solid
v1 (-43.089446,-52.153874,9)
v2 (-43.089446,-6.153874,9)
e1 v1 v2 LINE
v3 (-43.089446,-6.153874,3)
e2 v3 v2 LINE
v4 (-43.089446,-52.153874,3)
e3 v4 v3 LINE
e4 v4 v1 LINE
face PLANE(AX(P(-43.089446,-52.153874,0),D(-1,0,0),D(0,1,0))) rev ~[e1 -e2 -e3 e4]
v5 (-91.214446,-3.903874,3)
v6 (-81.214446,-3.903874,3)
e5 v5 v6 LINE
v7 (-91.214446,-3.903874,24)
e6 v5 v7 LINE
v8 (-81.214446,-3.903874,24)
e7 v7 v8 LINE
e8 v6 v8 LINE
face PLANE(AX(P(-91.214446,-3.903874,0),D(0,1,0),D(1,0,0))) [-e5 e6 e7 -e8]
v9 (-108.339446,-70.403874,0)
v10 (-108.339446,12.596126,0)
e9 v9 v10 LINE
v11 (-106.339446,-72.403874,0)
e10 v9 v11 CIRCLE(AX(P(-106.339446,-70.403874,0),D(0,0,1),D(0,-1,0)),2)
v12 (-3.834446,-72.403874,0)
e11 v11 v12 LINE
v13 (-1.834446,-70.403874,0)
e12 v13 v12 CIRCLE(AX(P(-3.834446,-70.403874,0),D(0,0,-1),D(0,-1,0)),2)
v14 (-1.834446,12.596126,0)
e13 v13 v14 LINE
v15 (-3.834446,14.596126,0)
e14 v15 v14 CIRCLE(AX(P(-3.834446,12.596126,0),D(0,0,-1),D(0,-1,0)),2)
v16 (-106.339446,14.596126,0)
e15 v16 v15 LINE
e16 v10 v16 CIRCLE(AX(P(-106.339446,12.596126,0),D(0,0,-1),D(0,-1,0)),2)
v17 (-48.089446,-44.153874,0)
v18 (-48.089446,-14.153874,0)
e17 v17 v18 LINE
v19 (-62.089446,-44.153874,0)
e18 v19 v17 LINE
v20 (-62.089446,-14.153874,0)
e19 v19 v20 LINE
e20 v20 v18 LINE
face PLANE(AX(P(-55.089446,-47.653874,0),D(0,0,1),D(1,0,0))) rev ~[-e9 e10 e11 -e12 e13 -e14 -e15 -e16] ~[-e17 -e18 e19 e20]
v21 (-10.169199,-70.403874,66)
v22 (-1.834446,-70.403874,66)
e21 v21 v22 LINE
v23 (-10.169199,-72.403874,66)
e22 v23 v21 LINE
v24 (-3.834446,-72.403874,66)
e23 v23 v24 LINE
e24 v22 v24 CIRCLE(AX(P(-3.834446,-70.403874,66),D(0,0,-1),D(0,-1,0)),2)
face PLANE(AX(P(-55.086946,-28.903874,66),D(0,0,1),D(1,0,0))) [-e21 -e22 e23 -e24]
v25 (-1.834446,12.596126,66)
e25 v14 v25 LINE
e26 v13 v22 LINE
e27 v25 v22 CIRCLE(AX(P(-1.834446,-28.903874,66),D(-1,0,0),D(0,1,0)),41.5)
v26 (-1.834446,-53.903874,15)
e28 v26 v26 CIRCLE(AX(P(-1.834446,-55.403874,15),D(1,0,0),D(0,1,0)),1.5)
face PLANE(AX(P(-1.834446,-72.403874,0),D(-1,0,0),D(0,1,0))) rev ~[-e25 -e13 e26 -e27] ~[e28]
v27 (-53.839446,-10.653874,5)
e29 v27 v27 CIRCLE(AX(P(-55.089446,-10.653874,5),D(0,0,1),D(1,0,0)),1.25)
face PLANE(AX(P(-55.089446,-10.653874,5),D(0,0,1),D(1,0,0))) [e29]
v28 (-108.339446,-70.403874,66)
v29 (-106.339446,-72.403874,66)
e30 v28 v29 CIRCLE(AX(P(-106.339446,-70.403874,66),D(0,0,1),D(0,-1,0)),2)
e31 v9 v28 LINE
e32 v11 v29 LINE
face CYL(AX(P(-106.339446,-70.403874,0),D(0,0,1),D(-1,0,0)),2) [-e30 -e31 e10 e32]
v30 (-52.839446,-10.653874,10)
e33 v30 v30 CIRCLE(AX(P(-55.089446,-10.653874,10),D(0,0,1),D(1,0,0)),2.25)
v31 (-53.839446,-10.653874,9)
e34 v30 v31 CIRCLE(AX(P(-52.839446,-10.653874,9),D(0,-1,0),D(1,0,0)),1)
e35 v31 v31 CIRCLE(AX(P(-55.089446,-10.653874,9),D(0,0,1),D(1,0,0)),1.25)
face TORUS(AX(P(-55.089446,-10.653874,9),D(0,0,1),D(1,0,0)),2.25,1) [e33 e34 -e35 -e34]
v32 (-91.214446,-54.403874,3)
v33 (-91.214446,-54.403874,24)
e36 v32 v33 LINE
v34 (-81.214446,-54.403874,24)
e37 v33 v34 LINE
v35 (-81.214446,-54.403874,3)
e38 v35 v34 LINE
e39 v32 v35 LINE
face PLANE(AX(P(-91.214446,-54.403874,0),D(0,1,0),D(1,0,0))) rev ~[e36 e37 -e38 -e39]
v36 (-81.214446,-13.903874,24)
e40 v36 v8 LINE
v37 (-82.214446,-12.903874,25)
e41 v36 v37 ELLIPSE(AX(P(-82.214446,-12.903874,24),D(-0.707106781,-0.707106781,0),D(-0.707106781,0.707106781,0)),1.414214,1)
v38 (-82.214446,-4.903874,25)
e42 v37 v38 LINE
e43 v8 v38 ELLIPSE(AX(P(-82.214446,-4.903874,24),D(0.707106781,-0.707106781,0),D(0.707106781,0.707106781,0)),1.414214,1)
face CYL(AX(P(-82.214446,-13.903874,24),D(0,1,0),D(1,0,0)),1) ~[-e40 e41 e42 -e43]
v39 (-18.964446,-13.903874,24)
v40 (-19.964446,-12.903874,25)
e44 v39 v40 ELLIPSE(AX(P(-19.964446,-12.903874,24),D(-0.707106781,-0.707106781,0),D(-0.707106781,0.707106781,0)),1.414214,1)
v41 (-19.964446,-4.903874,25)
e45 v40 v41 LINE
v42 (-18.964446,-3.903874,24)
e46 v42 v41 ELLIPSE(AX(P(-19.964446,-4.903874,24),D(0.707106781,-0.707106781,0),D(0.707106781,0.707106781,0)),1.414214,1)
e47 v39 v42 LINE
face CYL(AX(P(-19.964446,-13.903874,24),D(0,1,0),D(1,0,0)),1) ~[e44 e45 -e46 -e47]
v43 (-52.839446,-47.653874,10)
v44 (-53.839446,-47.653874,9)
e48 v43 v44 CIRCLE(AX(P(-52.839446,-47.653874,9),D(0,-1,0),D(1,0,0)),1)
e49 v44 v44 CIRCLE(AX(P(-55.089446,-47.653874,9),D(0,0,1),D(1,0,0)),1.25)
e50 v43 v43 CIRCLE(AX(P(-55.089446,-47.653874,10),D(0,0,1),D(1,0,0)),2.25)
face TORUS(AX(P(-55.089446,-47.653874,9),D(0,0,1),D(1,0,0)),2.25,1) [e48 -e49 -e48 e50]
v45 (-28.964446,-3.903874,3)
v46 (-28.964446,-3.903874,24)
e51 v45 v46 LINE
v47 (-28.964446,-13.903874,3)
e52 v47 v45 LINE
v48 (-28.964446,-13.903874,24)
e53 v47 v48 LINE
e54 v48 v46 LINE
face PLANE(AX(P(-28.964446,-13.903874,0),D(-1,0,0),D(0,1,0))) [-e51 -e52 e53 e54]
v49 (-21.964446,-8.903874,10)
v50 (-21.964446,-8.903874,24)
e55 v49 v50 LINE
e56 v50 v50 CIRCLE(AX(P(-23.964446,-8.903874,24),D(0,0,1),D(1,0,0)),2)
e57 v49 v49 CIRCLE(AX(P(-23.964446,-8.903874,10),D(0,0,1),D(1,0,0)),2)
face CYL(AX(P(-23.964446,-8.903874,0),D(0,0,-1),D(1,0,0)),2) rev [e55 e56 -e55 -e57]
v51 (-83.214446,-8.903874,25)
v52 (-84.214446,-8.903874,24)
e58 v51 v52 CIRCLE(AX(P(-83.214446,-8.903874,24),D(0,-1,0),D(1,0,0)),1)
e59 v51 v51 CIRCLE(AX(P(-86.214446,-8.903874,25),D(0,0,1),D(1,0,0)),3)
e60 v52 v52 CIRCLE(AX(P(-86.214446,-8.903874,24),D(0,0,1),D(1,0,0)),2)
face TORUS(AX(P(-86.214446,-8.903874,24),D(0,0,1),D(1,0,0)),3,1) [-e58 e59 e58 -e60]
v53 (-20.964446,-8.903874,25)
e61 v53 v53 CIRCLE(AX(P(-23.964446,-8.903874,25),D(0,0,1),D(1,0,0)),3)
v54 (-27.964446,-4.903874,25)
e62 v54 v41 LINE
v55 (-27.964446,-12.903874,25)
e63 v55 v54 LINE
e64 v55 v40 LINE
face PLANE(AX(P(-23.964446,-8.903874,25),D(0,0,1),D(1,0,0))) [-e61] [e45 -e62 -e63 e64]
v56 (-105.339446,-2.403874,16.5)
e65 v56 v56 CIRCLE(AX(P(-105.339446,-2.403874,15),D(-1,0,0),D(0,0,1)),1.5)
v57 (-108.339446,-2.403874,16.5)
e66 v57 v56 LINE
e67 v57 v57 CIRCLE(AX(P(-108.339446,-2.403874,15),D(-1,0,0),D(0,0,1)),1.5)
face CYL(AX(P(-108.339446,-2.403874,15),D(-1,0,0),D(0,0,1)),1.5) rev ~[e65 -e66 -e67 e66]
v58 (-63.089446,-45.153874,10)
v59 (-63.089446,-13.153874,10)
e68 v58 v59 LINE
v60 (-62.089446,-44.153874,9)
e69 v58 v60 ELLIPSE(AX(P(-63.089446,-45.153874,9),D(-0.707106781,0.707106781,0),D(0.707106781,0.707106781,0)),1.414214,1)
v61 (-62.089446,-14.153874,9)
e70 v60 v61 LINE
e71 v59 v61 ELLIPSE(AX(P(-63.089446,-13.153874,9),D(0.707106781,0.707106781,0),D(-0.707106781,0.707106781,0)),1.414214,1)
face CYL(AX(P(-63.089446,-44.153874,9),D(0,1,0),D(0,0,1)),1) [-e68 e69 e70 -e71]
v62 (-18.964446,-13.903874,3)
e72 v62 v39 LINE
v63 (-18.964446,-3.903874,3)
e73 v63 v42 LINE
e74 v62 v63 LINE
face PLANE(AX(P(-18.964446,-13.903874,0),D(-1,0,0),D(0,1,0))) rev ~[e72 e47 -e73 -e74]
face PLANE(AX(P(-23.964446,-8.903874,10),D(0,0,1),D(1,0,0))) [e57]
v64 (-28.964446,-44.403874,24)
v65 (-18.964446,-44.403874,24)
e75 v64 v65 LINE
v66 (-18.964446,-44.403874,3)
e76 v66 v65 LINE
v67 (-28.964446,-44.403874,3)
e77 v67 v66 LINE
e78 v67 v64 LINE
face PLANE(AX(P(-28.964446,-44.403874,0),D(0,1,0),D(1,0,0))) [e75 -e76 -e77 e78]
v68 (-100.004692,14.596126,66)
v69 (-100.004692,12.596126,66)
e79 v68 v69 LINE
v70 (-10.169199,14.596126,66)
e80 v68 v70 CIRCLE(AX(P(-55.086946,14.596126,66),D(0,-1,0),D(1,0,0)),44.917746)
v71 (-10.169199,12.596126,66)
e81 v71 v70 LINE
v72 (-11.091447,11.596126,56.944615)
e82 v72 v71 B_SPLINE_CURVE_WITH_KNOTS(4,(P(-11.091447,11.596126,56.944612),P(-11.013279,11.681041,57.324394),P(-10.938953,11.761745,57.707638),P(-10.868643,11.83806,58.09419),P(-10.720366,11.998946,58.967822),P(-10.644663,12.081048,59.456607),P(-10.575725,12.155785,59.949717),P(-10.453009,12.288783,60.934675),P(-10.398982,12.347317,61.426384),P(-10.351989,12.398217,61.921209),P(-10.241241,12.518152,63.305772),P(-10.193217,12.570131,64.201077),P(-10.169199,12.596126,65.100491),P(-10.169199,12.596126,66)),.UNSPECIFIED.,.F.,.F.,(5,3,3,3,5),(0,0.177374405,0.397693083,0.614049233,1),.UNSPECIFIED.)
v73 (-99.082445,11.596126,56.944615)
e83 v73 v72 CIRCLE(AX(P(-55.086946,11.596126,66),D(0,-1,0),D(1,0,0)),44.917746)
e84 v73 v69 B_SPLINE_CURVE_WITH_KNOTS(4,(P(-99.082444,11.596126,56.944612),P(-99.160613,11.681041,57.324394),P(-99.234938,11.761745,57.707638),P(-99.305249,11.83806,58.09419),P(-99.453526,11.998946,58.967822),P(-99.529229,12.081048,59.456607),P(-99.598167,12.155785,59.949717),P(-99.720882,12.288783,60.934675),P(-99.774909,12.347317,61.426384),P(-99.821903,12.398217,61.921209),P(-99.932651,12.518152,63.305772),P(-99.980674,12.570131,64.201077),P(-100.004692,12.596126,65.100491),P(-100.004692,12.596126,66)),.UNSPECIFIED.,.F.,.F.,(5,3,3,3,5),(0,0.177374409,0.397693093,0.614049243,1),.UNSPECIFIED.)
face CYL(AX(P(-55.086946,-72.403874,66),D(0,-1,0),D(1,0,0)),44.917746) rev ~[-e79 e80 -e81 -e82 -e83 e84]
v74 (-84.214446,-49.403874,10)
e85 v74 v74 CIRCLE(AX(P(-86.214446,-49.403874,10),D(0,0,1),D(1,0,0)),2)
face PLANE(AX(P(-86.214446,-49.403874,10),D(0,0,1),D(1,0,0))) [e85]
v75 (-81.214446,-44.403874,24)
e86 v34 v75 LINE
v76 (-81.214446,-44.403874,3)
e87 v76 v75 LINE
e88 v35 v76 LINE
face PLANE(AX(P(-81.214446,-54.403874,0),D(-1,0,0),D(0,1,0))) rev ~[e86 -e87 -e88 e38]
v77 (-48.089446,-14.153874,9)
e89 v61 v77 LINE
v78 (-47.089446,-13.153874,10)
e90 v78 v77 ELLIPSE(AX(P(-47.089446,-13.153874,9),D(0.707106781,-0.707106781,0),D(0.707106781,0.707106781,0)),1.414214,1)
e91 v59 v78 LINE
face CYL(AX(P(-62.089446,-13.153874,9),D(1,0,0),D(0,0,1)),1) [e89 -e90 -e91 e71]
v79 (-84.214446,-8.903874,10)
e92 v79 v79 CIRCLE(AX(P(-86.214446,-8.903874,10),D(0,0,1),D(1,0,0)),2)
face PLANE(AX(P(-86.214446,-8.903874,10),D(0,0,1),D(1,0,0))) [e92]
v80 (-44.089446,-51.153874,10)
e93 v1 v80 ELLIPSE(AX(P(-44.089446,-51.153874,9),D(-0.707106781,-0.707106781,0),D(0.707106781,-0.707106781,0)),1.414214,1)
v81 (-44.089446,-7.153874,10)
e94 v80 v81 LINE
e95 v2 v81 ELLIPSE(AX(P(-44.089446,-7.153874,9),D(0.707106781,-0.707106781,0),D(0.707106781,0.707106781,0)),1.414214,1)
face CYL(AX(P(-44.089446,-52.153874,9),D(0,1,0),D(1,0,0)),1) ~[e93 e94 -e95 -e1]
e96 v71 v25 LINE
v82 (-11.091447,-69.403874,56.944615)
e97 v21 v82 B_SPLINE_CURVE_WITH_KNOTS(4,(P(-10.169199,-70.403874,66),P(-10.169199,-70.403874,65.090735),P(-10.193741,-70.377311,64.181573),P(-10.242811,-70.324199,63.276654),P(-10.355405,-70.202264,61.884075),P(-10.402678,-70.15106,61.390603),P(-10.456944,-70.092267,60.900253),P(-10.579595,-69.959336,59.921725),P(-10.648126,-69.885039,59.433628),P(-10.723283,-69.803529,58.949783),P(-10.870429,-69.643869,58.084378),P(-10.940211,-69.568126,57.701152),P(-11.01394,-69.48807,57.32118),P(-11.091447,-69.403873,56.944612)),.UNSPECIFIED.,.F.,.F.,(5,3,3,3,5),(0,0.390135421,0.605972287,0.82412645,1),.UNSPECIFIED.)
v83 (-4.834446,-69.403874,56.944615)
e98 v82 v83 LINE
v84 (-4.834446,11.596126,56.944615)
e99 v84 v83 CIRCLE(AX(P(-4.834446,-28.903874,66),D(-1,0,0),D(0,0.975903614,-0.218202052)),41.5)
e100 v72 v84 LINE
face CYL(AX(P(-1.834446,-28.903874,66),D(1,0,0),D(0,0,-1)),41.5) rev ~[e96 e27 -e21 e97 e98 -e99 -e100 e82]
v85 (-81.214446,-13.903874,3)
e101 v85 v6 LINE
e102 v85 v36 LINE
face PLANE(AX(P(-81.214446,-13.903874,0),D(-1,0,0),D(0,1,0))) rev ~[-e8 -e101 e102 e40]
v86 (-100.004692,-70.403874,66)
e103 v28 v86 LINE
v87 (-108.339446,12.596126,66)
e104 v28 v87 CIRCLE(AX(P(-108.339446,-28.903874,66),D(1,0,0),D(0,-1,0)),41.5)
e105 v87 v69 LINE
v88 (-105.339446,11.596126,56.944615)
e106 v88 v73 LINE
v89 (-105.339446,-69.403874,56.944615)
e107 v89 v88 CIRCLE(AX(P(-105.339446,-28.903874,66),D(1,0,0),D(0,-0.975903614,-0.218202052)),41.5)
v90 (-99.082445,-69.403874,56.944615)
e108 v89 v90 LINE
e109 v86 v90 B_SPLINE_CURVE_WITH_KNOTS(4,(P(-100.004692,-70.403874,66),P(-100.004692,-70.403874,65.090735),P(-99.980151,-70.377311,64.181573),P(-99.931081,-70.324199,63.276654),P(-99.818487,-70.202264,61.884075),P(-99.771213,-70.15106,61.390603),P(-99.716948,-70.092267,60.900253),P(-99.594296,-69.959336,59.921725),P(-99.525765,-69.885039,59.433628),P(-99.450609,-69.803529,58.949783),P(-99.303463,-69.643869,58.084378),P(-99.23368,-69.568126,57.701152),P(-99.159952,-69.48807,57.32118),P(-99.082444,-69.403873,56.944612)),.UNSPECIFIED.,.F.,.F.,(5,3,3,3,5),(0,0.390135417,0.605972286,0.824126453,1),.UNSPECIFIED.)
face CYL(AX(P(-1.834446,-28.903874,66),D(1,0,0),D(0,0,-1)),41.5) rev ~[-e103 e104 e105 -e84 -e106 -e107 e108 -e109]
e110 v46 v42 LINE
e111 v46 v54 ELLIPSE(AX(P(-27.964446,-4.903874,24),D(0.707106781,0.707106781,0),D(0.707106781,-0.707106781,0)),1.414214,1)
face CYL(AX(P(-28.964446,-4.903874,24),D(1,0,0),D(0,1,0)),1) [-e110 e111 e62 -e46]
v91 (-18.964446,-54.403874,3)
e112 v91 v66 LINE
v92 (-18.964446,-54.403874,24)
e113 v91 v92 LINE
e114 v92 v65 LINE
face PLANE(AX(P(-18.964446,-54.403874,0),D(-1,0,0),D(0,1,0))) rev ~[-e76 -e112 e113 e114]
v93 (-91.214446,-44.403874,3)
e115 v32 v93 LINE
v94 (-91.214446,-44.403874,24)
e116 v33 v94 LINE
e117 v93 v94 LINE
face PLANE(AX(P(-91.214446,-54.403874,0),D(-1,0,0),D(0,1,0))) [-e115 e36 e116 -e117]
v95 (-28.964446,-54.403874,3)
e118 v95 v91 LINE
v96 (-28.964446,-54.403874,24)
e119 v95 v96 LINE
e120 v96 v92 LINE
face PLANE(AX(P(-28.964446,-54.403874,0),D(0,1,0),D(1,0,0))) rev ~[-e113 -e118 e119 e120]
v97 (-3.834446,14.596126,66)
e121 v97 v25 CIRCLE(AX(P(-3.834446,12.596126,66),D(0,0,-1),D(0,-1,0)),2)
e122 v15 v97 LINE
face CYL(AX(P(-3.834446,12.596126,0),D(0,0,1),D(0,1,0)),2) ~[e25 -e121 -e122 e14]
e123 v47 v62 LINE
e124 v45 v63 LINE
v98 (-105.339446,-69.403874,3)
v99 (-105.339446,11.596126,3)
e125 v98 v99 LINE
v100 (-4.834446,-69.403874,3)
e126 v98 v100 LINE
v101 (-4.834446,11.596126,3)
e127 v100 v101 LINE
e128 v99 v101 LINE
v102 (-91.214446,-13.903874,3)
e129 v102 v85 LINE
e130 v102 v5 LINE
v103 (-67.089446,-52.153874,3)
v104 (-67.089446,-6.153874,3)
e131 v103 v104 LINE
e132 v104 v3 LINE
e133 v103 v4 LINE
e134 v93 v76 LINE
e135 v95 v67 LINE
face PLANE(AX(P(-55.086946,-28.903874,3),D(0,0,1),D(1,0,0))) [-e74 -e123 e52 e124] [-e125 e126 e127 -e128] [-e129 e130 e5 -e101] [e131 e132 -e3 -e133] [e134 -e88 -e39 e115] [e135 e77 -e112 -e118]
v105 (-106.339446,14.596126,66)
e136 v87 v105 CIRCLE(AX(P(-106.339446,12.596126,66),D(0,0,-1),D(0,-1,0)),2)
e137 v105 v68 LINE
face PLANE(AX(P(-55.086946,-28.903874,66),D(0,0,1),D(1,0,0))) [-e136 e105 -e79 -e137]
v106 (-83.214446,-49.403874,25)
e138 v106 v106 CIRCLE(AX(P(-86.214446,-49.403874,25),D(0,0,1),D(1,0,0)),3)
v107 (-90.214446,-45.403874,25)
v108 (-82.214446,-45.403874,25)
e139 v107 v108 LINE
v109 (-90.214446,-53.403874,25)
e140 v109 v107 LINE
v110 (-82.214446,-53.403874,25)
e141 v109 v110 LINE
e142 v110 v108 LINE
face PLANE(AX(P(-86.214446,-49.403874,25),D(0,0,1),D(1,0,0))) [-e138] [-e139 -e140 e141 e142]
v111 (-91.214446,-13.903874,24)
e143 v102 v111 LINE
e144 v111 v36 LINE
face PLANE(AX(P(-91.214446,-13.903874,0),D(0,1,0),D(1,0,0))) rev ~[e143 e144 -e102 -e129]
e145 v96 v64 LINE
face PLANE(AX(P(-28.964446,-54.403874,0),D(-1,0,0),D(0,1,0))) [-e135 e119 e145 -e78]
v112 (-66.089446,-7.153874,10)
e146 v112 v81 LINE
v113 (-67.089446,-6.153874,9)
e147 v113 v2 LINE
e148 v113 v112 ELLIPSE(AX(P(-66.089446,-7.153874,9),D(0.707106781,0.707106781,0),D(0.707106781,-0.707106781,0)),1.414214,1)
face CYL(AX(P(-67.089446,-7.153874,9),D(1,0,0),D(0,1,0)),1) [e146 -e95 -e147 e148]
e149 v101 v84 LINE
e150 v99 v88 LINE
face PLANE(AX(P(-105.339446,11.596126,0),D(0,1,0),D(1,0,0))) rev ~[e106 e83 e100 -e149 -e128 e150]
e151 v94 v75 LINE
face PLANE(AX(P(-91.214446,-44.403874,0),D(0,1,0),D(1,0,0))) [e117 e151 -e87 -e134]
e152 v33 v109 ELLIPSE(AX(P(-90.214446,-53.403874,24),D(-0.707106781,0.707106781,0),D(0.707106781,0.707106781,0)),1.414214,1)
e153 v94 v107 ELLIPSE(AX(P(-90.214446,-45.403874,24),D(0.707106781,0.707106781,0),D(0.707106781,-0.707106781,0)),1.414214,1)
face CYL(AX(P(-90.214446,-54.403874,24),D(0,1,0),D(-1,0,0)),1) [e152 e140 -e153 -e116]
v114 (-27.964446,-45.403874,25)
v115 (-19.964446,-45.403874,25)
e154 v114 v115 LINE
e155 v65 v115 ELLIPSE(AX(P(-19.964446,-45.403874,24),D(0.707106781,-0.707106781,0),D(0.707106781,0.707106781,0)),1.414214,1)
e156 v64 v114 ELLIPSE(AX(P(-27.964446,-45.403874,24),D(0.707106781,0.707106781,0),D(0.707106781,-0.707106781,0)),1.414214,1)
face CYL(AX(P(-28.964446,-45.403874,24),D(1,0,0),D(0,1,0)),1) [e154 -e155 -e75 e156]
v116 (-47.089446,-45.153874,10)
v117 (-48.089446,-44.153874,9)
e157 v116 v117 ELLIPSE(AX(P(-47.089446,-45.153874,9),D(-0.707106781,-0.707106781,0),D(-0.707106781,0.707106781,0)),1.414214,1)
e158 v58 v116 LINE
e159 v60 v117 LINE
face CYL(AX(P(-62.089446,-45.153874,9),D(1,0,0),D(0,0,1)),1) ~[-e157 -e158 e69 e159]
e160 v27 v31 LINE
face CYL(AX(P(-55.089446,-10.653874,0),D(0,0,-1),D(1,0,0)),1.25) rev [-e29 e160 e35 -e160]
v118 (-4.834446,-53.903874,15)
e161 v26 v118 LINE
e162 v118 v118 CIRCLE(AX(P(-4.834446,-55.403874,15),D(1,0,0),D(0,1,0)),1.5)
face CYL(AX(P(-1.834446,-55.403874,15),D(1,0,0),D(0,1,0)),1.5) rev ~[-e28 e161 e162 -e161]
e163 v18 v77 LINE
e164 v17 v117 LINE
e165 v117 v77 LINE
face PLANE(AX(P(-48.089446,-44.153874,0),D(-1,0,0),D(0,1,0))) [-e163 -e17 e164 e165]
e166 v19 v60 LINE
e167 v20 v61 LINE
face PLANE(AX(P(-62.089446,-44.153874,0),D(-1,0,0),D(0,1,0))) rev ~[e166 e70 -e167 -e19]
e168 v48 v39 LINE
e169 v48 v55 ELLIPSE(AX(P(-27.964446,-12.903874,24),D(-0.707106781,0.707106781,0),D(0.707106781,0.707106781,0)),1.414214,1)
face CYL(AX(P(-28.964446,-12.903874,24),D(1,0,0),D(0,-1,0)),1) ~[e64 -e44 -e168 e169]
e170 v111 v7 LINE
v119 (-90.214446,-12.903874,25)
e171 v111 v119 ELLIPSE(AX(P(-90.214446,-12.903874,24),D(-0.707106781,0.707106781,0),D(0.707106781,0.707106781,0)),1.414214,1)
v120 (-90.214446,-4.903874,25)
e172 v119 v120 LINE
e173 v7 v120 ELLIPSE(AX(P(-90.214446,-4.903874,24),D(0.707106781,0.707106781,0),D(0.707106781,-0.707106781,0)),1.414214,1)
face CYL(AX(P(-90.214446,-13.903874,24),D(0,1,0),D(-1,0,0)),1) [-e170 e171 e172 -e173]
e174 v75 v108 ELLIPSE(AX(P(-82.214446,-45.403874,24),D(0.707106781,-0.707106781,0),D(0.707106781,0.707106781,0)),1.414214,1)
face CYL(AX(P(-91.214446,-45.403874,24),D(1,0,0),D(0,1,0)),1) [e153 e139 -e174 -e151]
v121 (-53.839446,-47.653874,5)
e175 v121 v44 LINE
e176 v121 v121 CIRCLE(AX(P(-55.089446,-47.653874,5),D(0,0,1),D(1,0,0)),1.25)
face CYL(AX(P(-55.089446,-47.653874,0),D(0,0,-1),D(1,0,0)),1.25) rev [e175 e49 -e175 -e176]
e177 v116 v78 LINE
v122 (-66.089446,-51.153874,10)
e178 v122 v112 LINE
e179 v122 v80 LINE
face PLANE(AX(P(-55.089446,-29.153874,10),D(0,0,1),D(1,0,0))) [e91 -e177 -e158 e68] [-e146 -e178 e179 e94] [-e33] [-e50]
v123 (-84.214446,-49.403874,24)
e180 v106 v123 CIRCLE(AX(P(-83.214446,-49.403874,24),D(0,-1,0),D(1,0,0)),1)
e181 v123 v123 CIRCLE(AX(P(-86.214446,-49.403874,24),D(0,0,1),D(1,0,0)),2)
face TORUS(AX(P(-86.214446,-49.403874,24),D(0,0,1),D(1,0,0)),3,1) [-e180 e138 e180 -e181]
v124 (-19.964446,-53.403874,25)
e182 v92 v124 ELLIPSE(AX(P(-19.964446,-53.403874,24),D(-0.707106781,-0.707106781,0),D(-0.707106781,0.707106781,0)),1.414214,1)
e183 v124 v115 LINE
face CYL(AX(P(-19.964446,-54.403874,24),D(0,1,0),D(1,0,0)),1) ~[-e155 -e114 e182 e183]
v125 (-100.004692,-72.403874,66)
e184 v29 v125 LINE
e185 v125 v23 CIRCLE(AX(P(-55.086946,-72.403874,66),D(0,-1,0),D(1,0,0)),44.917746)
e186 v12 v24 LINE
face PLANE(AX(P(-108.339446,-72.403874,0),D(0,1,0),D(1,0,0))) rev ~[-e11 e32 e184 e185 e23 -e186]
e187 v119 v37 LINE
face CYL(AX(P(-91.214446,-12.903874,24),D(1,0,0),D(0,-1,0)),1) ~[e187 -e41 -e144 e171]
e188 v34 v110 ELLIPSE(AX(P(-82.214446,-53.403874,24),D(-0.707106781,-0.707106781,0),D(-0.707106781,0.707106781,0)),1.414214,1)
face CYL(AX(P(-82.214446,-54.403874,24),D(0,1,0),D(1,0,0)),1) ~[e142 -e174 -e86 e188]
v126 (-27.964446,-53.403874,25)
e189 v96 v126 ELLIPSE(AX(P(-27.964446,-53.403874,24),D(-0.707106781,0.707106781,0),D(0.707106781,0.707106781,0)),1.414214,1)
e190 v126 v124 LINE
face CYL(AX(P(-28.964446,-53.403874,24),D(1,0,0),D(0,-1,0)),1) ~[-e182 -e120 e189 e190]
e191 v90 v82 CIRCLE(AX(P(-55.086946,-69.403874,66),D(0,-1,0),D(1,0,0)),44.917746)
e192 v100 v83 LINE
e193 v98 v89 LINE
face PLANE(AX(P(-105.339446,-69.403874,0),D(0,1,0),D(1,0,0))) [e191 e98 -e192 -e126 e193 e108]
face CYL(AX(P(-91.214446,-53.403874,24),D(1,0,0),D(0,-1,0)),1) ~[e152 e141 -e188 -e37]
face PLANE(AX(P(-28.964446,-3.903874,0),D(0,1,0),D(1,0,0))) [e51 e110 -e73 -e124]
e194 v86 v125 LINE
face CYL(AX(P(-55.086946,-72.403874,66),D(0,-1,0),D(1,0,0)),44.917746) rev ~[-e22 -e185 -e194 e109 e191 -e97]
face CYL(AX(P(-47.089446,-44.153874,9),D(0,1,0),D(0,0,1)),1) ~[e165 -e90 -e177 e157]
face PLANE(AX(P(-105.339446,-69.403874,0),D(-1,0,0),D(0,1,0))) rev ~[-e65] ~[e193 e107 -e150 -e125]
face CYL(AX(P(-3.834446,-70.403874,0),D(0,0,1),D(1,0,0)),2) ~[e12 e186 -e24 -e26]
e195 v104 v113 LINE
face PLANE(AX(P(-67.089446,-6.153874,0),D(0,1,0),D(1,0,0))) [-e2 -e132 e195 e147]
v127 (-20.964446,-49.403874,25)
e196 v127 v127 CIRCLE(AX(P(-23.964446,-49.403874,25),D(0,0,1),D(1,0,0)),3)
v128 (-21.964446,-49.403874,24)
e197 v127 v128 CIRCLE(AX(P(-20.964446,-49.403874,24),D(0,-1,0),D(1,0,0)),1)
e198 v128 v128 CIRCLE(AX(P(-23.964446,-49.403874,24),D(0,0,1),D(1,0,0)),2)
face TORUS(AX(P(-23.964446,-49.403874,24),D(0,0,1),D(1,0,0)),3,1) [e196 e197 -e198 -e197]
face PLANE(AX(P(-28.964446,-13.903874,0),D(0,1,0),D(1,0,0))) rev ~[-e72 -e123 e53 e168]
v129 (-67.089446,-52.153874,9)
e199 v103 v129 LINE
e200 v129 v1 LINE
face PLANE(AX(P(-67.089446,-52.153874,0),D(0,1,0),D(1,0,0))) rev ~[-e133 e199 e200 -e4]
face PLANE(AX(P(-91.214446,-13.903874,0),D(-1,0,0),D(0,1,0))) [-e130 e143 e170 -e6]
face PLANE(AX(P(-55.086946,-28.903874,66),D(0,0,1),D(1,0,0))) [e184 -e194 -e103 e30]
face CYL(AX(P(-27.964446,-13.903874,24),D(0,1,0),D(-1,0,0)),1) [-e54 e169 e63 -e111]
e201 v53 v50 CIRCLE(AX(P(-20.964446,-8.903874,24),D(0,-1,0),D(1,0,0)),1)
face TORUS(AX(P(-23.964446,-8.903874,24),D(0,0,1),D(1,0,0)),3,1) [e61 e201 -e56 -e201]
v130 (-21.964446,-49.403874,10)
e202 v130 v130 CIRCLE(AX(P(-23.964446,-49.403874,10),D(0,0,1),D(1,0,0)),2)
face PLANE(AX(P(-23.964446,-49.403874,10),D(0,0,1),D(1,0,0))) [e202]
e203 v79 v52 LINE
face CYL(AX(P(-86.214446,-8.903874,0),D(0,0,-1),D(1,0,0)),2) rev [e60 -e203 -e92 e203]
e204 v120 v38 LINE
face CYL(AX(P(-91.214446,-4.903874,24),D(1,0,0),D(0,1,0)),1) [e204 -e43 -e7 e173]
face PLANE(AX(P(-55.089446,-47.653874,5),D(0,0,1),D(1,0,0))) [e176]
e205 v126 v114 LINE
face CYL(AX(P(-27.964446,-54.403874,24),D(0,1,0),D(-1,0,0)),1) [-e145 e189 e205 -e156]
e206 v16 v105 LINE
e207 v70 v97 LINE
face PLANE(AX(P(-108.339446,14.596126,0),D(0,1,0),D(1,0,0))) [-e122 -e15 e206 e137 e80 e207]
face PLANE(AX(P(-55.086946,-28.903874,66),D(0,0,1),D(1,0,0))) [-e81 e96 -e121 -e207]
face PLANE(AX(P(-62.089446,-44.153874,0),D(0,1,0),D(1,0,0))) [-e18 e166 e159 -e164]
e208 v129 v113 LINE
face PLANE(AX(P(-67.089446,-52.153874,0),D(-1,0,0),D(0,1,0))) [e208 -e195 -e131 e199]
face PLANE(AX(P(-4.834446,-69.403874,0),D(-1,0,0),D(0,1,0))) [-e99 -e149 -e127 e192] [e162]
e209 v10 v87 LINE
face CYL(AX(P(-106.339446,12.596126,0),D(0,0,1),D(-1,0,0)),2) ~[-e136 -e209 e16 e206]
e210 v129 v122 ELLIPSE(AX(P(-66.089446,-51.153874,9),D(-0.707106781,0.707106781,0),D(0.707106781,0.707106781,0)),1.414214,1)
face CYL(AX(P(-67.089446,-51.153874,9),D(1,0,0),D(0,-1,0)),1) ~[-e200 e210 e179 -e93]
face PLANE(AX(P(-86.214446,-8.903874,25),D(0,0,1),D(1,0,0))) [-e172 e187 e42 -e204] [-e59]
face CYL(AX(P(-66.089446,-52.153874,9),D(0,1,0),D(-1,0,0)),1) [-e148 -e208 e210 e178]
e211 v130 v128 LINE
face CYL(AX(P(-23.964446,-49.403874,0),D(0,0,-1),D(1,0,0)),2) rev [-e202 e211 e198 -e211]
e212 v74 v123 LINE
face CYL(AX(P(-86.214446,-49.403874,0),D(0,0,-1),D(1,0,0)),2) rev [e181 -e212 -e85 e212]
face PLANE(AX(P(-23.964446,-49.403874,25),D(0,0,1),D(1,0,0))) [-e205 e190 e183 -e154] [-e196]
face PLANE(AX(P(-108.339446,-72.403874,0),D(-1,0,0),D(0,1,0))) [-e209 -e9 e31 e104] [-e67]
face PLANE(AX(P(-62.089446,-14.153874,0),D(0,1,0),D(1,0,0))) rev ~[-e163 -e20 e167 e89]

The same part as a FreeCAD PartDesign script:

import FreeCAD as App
import Part
import Sketcher

V = App.Vector
Q = App.Units.Quantity


def edges_at(feature, points):
    """Names of the edges that pass closest to the given points."""
    edges = feature.Shape.Edges
    near = lambda p: min(range(len(edges)), key=lambda i: edges[i].distToShape(Part.Vertex(*p))[0])
    return sorted({f"Edge{near(p) + 1}" for p in points})

doc = App.newDocument("Part")
body = doc.addObject("PartDesign::Body", "Body")

sketch1 = body.newObject("Sketcher::SketchObject", "Sketch")
sketch1.AttachmentSupport = (doc.getObject("XY_Plane"), [""])
sketch1.MapMode = "FlatFace"
sketch1.addGeometry([
    Part.LineSegment(V(-108, 15, 0), V(-108, -72, 0)),
    Part.LineSegment(V(-108, -72, 0), V(-2, -72, 0)),
    Part.LineSegment(V(-2, -72, 0), V(-2, 15, 0)),
    Part.LineSegment(V(-2, 15, 0), V(-108, 15, 0)),
    Part.LineSegment(V(-5, -69, 0), V(-105, -69, 0)),
    Part.LineSegment(V(-105, -69, 0), V(-105, 12, 0)),
    Part.LineSegment(V(-105, 12, 0), V(-5, 12, 0)),
    Part.LineSegment(V(-5, 12, 0), V(-5, -69, 0)),
], False)
sketch1.addConstraint([
    Sketcher.Constraint("Coincident", 0, 2, 1, 1),
    Sketcher.Constraint("Coincident", 1, 2, 2, 1),
    Sketcher.Constraint("Coincident", 2, 2, 3, 1),
    Sketcher.Constraint("Coincident", 3, 2, 0, 1),
    Sketcher.Constraint("Coincident", 4, 2, 5, 1),
    Sketcher.Constraint("Coincident", 5, 2, 6, 1),
    Sketcher.Constraint("Coincident", 6, 2, 7, 1),
    Sketcher.Constraint("Coincident", 7, 2, 4, 1),
    Sketcher.Constraint("Vertical", 0),
    Sketcher.Constraint("Horizontal", 1),
    Sketcher.Constraint("Vertical", 2),
    Sketcher.Constraint("Horizontal", 3),
    Sketcher.Constraint("Horizontal", 4),
    Sketcher.Constraint("Vertical", 5),
    Sketcher.Constraint("Horizontal", 6),
    Sketcher.Constraint("Vertical", 7),
    Sketcher.Constraint("DistanceY", 0, 2, 0, 1, Q("87 mm")),
    Sketcher.Constraint("DistanceY", 5, 1, 5, 2, Q("81 mm")),
    Sketcher.Constraint("DistanceX", 0, 2, 4, 2, Q("3 mm")),
    Sketcher.Constraint("DistanceY", 0, 2, 4, 2, Q("3 mm")),
    Sketcher.Constraint("DistanceX", 6, 2, 2, 2, Q("3 mm")),
    Sketcher.Constraint("DistanceX", 1, 1, 1, 2, Q("106.505 mm")),
    Sketcher.Constraint("DistanceX", 0, 2, -1, 1, Q("108.339446 mm")),
    Sketcher.Constraint("DistanceY", 0, 2, -1, 1, Q("72.403874 mm")),
])
pad1 = body.newObject("PartDesign::Pad", "Pad")
pad1.Profile = sketch1
pad1.Length = 66

sketch2 = body.newObject("Sketcher::SketchObject", "Sketch001")
sketch2.AttachmentSupport = (doc.getObject("XY_Plane"), [""])
sketch2.MapMode = "FlatFace"
sketch2.addGeometry([
    Part.LineSegment(V(-105, 12, 0), V(-105, -69, 0)),
    Part.LineSegment(V(-105, -69, 0), V(-5, -69, 0)),
    Part.LineSegment(V(-5, -69, 0), V(-5, 12, 0)),
    Part.LineSegment(V(-5, 12, 0), V(-105, 12, 0)),
    Part.LineSegment(V(-81, -54, 0), V(-91, -54, 0)),
    Part.LineSegment(V(-91, -54, 0), V(-91, -44, 0)),
    Part.LineSegment(V(-91, -44, 0), V(-81, -44, 0)),
    Part.LineSegment(V(-81, -44, 0), V(-81, -54, 0)),
    Part.LineSegment(V(-19, -54, 0), V(-29, -54, 0)),
    Part.LineSegment(V(-29, -54, 0), V(-29, -44, 0)),
    Part.LineSegment(V(-29, -44, 0), V(-19, -44, 0)),
    Part.LineSegment(V(-19, -44, 0), V(-19, -54, 0)),
    Part.LineSegment(V(-43, -52, 0), V(-67, -52, 0)),
    Part.LineSegment(V(-67, -52, 0), V(-67, -6, 0)),
    Part.LineSegment(V(-67, -6, 0), V(-43, -6, 0)),
    Part.LineSegment(V(-43, -6, 0), V(-43, -52, 0)),
    Part.LineSegment(V(-81, -14, 0), V(-91, -14, 0)),
    Part.LineSegment(V(-91, -14, 0), V(-91, -4, 0)),
    Part.LineSegment(V(-91, -4, 0), V(-81, -4, 0)),
    Part.LineSegment(V(-81, -4, 0), V(-81, -14, 0)),
    Part.LineSegment(V(-19, -14, 0), V(-29, -14, 0)),
    Part.LineSegment(V(-29, -14, 0), V(-29, -4, 0)),
    Part.LineSegment(V(-29, -4, 0), V(-19, -4, 0)),
    Part.LineSegment(V(-19, -4, 0), V(-19, -14, 0)),
], False)
sketch2.addConstraint([
    Sketcher.Constraint("Coincident", 0, 2, 1, 1),
    Sketcher.Constraint("Coincident", 1, 2, 2, 1),
    Sketcher.Constraint("Coincident", 2, 2, 3, 1),
    Sketcher.Constraint("Coincident", 3, 2, 0, 1),
    Sketcher.Constraint("Coincident", 4, 2, 5, 1),
    Sketcher.Constraint("Coincident", 5, 2, 6, 1),
    Sketcher.Constraint("Coincident", 6, 2, 7, 1),
    Sketcher.Constraint("Coincident", 7, 2, 4, 1),
    Sketcher.Constraint("Coincident", 8, 2, 9, 1),
    Sketcher.Constraint("Coincident", 9, 2, 10, 1),
    Sketcher.Constraint("Coincident", 10, 2, 11, 1),
    Sketcher.Constraint("Coincident", 11, 2, 8, 1),
    Sketcher.Constraint("Coincident", 12, 2, 13, 1),
    Sketcher.Constraint("Coincident", 13, 2, 14, 1),
    Sketcher.Constraint("Coincident", 14, 2, 15, 1),
    Sketcher.Constraint("Coincident", 15, 2, 12, 1),
    Sketcher.Constraint("Coincident", 16, 2, 17, 1),
    Sketcher.Constraint("Coincident", 17, 2, 18, 1),
    Sketcher.Constraint("Coincident", 18, 2, 19, 1),
    Sketcher.Constraint("Coincident", 19, 2, 16, 1),
    Sketcher.Constraint("Coincident", 20, 2, 21, 1),
    Sketcher.Constraint("Coincident", 21, 2, 22, 1),
    Sketcher.Constraint("Coincident", 22, 2, 23, 1),
    Sketcher.Constraint("Coincident", 23, 2, 20, 1),
    Sketcher.Constraint("Vertical", 0),
    Sketcher.Constraint("Horizontal", 1),
    Sketcher.Constraint("Vertical", 2),
    Sketcher.Constraint("Horizontal", 3),
    Sketcher.Constraint("Horizontal", 4),
    Sketcher.Constraint("Vertical", 5),
    Sketcher.Constraint("Horizontal", 6),
    Sketcher.Constraint("Vertical", 7),
    Sketcher.Constraint("Horizontal", 8),
    Sketcher.Constraint("Vertical", 9),
    Sketcher.Constraint("Horizontal", 10),
    Sketcher.Constraint("Vertical", 11),
    Sketcher.Constraint("Horizontal", 12),
    Sketcher.Constraint("Vertical", 13),
    Sketcher.Constraint("Horizontal", 14),
    Sketcher.Constraint("Vertical", 15),
    Sketcher.Constraint("Horizontal", 16),
    Sketcher.Constraint("Vertical", 17),
    Sketcher.Constraint("Horizontal", 18),
    Sketcher.Constraint("Vertical", 19),
    Sketcher.Constraint("Horizontal", 20),
    Sketcher.Constraint("Vertical", 21),
    Sketcher.Constraint("Horizontal", 22),
    Sketcher.Constraint("Vertical", 23),
    Sketcher.Constraint("Horizontal", 7, 2, 8, 2),
    Sketcher.Constraint("Horizontal", 6, 2, 9, 2),
    Sketcher.Constraint("Horizontal", 19, 2, 20, 2),
    Sketcher.Constraint("Horizontal", 18, 2, 21, 2),
    Sketcher.Constraint("Vertical", 5, 2, 16, 2),
    Sketcher.Constraint("Vertical", 7, 2, 18, 2),
    Sketcher.Constraint("Vertical", 9, 2, 20, 2),
    Sketcher.Constraint("Vertical", 11, 2, 22, 2),
    Sketcher.Constraint("Equal", 6, 8),
    Sketcher.Constraint("Equal", 22, 5),
    Sketcher.Constraint("Equal", 11, 17),
    Sketcher.Constraint("DistanceX", 4, 2, 4, 1, Q("10 mm")),
    Sketcher.Constraint("DistanceX", 12, 2, 12, 1, Q("24 mm")),
    Sketcher.Constraint("DistanceY", 0, 2, 0, 1, Q("81 mm")),
    Sketcher.Constraint("DistanceY", 13, 1, 13, 2, Q("46 mm")),
    Sketcher.Constraint("DistanceY", 0, 2, 4, 2, Q("15 mm")),
    Sketcher.Constraint("DistanceY", 16, 2, 3, 2, Q("25.5 mm")),
    Sketcher.Constraint("DistanceX", 1, 1, 1, 2, Q("100.505 mm")),
    Sketcher.Constraint("DistanceX", 4, 2, 1, 2, Q("86.38 mm")),
    Sketcher.Constraint("DistanceX", 8, 2, 1, 2, Q("24.13 mm")),
    Sketcher.Constraint("DistanceY", 7, 2, 12, 2, Q("2.25 mm")),
    Sketcher.Constraint("DistanceX", 3, 2, 13, 2, Q("38.25 mm")),
    Sketcher.Constraint("DistanceX", 0, 2, -1, 1, Q("105.339446 mm")),
    Sketcher.Constraint("DistanceY", 0, 2, -1, 1, Q("69.403874 mm")),
])
pad2 = body.newObject("PartDesign::Pad", "Pad001")
pad2.Profile = sketch2
pad2.Length = 3
doc.recompute()

fillet = body.newObject("PartDesign::Fillet", "Fillet")
fillet.Base = (pad2, edges_at(pad2, [(-108.339, -72.404, 33)]))
fillet.Radius = 2
doc.recompute()

fillet2 = body.newObject("PartDesign::Fillet", "Fillet001")
fillet2.Base = (fillet, edges_at(fillet, [(-108.339, 14.596, 33)]))
fillet2.Radius = 2
doc.recompute()

fillet3 = body.newObject("PartDesign::Fillet", "Fillet002")
fillet3.Base = (fillet2, edges_at(fillet2, [(-1.834, 14.596, 33)]))
fillet3.Radius = 2
doc.recompute()

fillet4 = body.newObject("PartDesign::Fillet", "Fillet003")
fillet4.Base = (fillet3, edges_at(fillet3, [(-1.834, -72.404, 33)]))
fillet4.Radius = 2

sketch3 = body.newObject("Sketcher::SketchObject", "Sketch002")
sketch3.AttachmentSupport = (doc.getObject("XZ_Plane"), [""])
sketch3.MapMode = "FlatFace"
sketch3.AttachmentOffset = App.Placement(V(0, 0, 72.403874), App.Rotation())
sketch3.addGeometry(Part.Circle(V(-55, 66, 0), V(0, 0, 1), 45), False)
sketch3.addConstraint([
    Sketcher.Constraint("DistanceY", -1, 1, 0, 3, Q("66 mm")),
    Sketcher.Constraint("Diameter", 0, Q("89.835493 mm")),
    Sketcher.Constraint("DistanceX", 0, 3, -1, 1, Q("55.086946 mm")),
])
pocket1 = body.newObject("PartDesign::Pocket", "Pocket")
pocket1.Profile = sketch3
pocket1.Length = 111

sketch4 = body.newObject("Sketcher::SketchObject", "Sketch003")
sketch4.AttachmentSupport = (doc.getObject("YZ_Plane"), [""])
sketch4.MapMode = "FlatFace"
sketch4.AttachmentOffset = App.Placement(V(0, 0, -1.834446), App.Rotation())
sketch4.addGeometry(Part.Circle(V(-29, 66, 0), V(0, 0, 1), 42), False)
sketch4.addConstraint([
    Sketcher.Constraint("Diameter", 0, Q("83 mm")),
    Sketcher.Constraint("DistanceY", -1, 1, 0, 3, Q("66 mm")),
    Sketcher.Constraint("DistanceX", 0, 3, -1, 1, Q("28.903874 mm")),
])
pocket2 = body.newObject("PartDesign::Pocket", "Pocket001")
pocket2.Profile = sketch4
pocket2.Length = 111

sketch5 = body.newObject("Sketcher::SketchObject", "Sketch004")
sketch5.AttachmentSupport = (doc.getObject("YZ_Plane"), [""])
sketch5.MapMode = "FlatFace"
sketch5.AttachmentOffset = App.Placement(V(0, 0, -108.339446), App.Rotation())
sketch5.addGeometry(Part.Circle(V(-2.4, 15, 0), V(0, 0, 1), 1.5), False)
sketch5.addConstraint([
    Sketcher.Constraint("Diameter", 0, Q("3 mm")),
    Sketcher.Constraint("DistanceY", -1, 1, 0, 3, Q("15 mm")),
    Sketcher.Constraint("DistanceX", 0, 3, -1, 1, Q("2.403874 mm")),
])
pocket3 = body.newObject("PartDesign::Pocket", "Pocket002")
pocket3.Profile = sketch5
pocket3.Length = 5
pocket3.Reversed = True

sketch6 = body.newObject("Sketcher::SketchObject", "Sketch005")
sketch6.AttachmentSupport = (doc.getObject("YZ_Plane"), [""])
sketch6.MapMode = "FlatFace"
sketch6.AttachmentOffset = App.Placement(V(0, 0, -1.834446), App.Rotation())
sketch6.addGeometry(Part.Circle(V(-55.4, 15, 0), V(0, 0, 1), 1.5), False)
sketch6.addConstraint([
    Sketcher.Constraint("Diameter", 0, Q("3 mm")),
    Sketcher.Constraint("DistanceY", -1, 1, 0, 3, Q("15 mm")),
    Sketcher.Constraint("DistanceX", 0, 3, -1, 1, Q("55.403874 mm")),
])
pocket4 = body.newObject("PartDesign::Pocket", "Pocket003")
pocket4.Profile = sketch6
pocket4.Length = 15

sketch7 = body.newObject("Sketcher::SketchObject", "Sketch006")
sketch7.AttachmentSupport = (doc.getObject("XY_Plane"), [""])
sketch7.MapMode = "FlatFace"
sketch7.addGeometry([
    Part.LineSegment(V(-67.1, -6.2, 0), V(-67.1, -52.2, 0)),
    Part.LineSegment(V(-67.1, -52.2, 0), V(-43.1, -52.2, 0)),
    Part.LineSegment(V(-43.1, -52.2, 0), V(-43.1, -6.2, 0)),
    Part.LineSegment(V(-43.1, -6.2, 0), V(-67.1, -6.2, 0)),
    Part.Circle(V(-55.1, -47.7, 0), V(0, 0, 1), 1.2),
    Part.LineSegment(V(-48.1, -44.2, 0), V(-62.1, -44.2, 0)),
    Part.LineSegment(V(-62.1, -44.2, 0), V(-62.1, -14.2, 0)),
    Part.LineSegment(V(-62.1, -14.2, 0), V(-48.1, -14.2, 0)),
    Part.LineSegment(V(-48.1, -14.2, 0), V(-48.1, -44.2, 0)),
    Part.Circle(V(-55.1, -10.7, 0), V(0, 0, 1), 1.2),
], False)
sketch7.addConstraint([
    Sketcher.Constraint("Coincident", 0, 2, 1, 1),
    Sketcher.Constraint("Coincident", 1, 2, 2, 1),
    Sketcher.Constraint("Coincident", 2, 2, 3, 1),
    Sketcher.Constraint("Coincident", 3, 2, 0, 1),
    Sketcher.Constraint("Coincident", 5, 2, 6, 1),
    Sketcher.Constraint("Coincident", 6, 2, 7, 1),
    Sketcher.Constraint("Coincident", 7, 2, 8, 1),
    Sketcher.Constraint("Coincident", 8, 2, 5, 1),
    Sketcher.Constraint("Vertical", 0),
    Sketcher.Constraint("Horizontal", 1),
    Sketcher.Constraint("Vertical", 2),
    Sketcher.Constraint("Horizontal", 3),
    Sketcher.Constraint("Horizontal", 5),
    Sketcher.Constraint("Vertical", 6),
    Sketcher.Constraint("Horizontal", 7),
    Sketcher.Constraint("Vertical", 8),
    Sketcher.Constraint("Equal", 4, 9),
    Sketcher.Constraint("Vertical", 4, 3, 9, 3),
    Sketcher.Constraint("Diameter", 4, Q("2.5 mm")),
    Sketcher.Constraint("DistanceX", 1, 1, 1, 2, Q("24 mm")),
    Sketcher.Constraint("DistanceX", 5, 2, 5, 1, Q("14 mm")),
    Sketcher.Constraint("DistanceY", 0, 2, 0, 1, Q("46 mm")),
    Sketcher.Constraint("DistanceY", 6, 1, 6, 2, Q("30 mm")),
    Sketcher.Constraint("DistanceY", 4, 3, 9, 3, Q("37 mm")),
    Sketcher.Constraint("DistanceX", 0, 2, 4, 3, Q("12 mm")),
    Sketcher.Constraint("DistanceX", 5, 2, 4, 3, Q("7 mm")),
    Sketcher.Constraint("DistanceY", 0, 2, 5, 2, Q("8 mm")),
    Sketcher.Constraint("DistanceY", 0, 2, 4, 3, Q("4.5 mm")),
    Sketcher.Constraint("DistanceX", 4, 3, -1, 1, Q("55.089446 mm")),
    Sketcher.Constraint("DistanceY", 4, 3, -1, 1, Q("47.653874 mm")),
])
pad3 = body.newObject("PartDesign::Pad", "Pad002")
pad3.Profile = sketch7
pad3.Length = 10

sketch8 = body.newObject("Sketcher::SketchObject", "Sketch007")
sketch8.AttachmentSupport = (doc.getObject("XY_Plane"), [""])
sketch8.MapMode = "FlatFace"
sketch8.addGeometry([
    Part.LineSegment(V(-91.2, -3.9, 0), V(-91.2, -13.9, 0)),
    Part.LineSegment(V(-91.2, -13.9, 0), V(-81.2, -13.9, 0)),
    Part.LineSegment(V(-81.2, -13.9, 0), V(-81.2, -3.9, 0)),
    Part.LineSegment(V(-81.2, -3.9, 0), V(-91.2, -3.9, 0)),
    Part.Circle(V(-86.2, -8.9, 0), V(0, 0, 1), 2),
    Part.LineSegment(V(-91.2, -44.4, 0), V(-91.2, -54.4, 0)),
    Part.LineSegment(V(-91.2, -54.4, 0), V(-81.2, -54.4, 0)),
    Part.LineSegment(V(-81.2, -54.4, 0), V(-81.2, -44.4, 0)),
    Part.LineSegment(V(-81.2, -44.4, 0), V(-91.2, -44.4, 0)),
    Part.Circle(V(-86.2, -49.4, 0), V(0, 0, 1), 2),
    Part.LineSegment(V(-29, -3.9, 0), V(-29, -13.9, 0)),
    Part.LineSegment(V(-29, -13.9, 0), V(-19, -13.9, 0)),
    Part.LineSegment(V(-19, -13.9, 0), V(-19, -3.9, 0)),
    Part.LineSegment(V(-19, -3.9, 0), V(-29, -3.9, 0)),
    Part.Circle(V(-24, -8.9, 0), V(0, 0, 1), 2),
    Part.LineSegment(V(-29, -44.4, 0), V(-29, -54.4, 0)),
    Part.LineSegment(V(-29, -54.4, 0), V(-19, -54.4, 0)),
    Part.LineSegment(V(-19, -54.4, 0), V(-19, -44.4, 0)),
    Part.LineSegment(V(-19, -44.4, 0), V(-29, -44.4, 0)),
    Part.Circle(V(-24, -49.4, 0), V(0, 0, 1), 2),
], False)
sketch8.addConstraint([
    Sketcher.Constraint("Coincident", 0, 2, 1, 1),
    Sketcher.Constraint("Coincident", 1, 2, 2, 1),
    Sketcher.Constraint("Coincident", 2, 2, 3, 1),
    Sketcher.Constraint("Coincident", 3, 2, 0, 1),
    Sketcher.Constraint("Coincident", 5, 2, 6, 1),
    Sketcher.Constraint("Coincident", 6, 2, 7, 1),
    Sketcher.Constraint("Coincident", 7, 2, 8, 1),
    Sketcher.Constraint("Coincident", 8, 2, 5, 1),
    Sketcher.Constraint("Coincident", 10, 2, 11, 1),
    Sketcher.Constraint("Coincident", 11, 2, 12, 1),
    Sketcher.Constraint("Coincident", 12, 2, 13, 1),
    Sketcher.Constraint("Coincident", 13, 2, 10, 1),
    Sketcher.Constraint("Coincident", 15, 2, 16, 1),
    Sketcher.Constraint("Coincident", 16, 2, 17, 1),
    Sketcher.Constraint("Coincident", 17, 2, 18, 1),
    Sketcher.Constraint("Coincident", 18, 2, 15, 1),
    Sketcher.Constraint("Vertical", 0),
    Sketcher.Constraint("Horizontal", 1),
    Sketcher.Constraint("Vertical", 2),
    Sketcher.Constraint("Horizontal", 3),
    Sketcher.Constraint("Vertical", 5),
    Sketcher.Constraint("Horizontal", 6),
    Sketcher.Constraint("Vertical", 7),
    Sketcher.Constraint("Horizontal", 8),
    Sketcher.Constraint("Vertical", 10),
    Sketcher.Constraint("Horizontal", 11),
    Sketcher.Constraint("Vertical", 12),
    Sketcher.Constraint("Horizontal", 13),
    Sketcher.Constraint("Vertical", 15),
    Sketcher.Constraint("Horizontal", 16),
    Sketcher.Constraint("Vertical", 17),
    Sketcher.Constraint("Horizontal", 18),
    Sketcher.Constraint("Equal", 4, 9),
    Sketcher.Constraint("Equal", 9, 14),
    Sketcher.Constraint("Equal", 14, 19),
    Sketcher.Constraint("Horizontal", 4, 3, 14, 3),
    Sketcher.Constraint("Horizontal", 9, 3, 19, 3),
    Sketcher.Constraint("Horizontal", 1, 2, 10, 2),
    Sketcher.Constraint("Horizontal", 3, 2, 12, 2),
    Sketcher.Constraint("Horizontal", 6, 2, 15, 2),
    Sketcher.Constraint("Horizontal", 8, 2, 17, 2),
    Sketcher.Constraint("Vertical", 4, 3, 9, 3),
    Sketcher.Constraint("Vertical", 14, 3, 19, 3),
    Sketcher.Constraint("Vertical", 3, 2, 5, 2),
    Sketcher.Constraint("Vertical", 2, 2, 6, 2),
    Sketcher.Constraint("Vertical", 13, 2, 15, 2),
    Sketcher.Constraint("Vertical", 12, 2, 16, 2),
    Sketcher.Constraint("Equal", 8, 11),
    Sketcher.Constraint("Equal", 18, 0),
    Sketcher.Constraint("Equal", 2, 5),
    Sketcher.Constraint("Diameter", 4, Q("4 mm")),
    Sketcher.Constraint("DistanceX", 1, 1, 1, 2, Q("10 mm")),
    Sketcher.Constraint("DistanceX", 0, 2, 4, 3, Q("5 mm")),
    Sketcher.Constraint("DistanceY", 0, 2, 4, 3, Q("5 mm")),
    Sketcher.Constraint("DistanceY", 5, 2, 9, 3, Q("5 mm")),
    Sketcher.Constraint("DistanceX", 10, 2, 14, 3, Q("5 mm")),
    Sketcher.Constraint("DistanceY", 9, 3, 4, 3, Q("40.5 mm")),
    Sketcher.Constraint("DistanceX", 4, 3, 14, 3, Q("62.25 mm")),
    Sketcher.Constraint("DistanceX", 4, 3, -1, 1, Q("86.214446 mm")),
    Sketcher.Constraint("DistanceY", 4, 3, -1, 1, Q("8.903874 mm")),
])
pad4 = body.newObject("PartDesign::Pad", "Pad003")
pad4.Profile = sketch8
pad4.Length = 25

sketch9 = body.newObject("Sketcher::SketchObject", "Sketch008")
sketch9.AttachmentSupport = (doc.getObject("XY_Plane"), [""])
sketch9.MapMode = "FlatFace"
sketch9.addGeometry([
    Part.Circle(V(-86.2, -49.4, 0), V(0, 0, 1), 2),
    Part.Circle(V(-86.2, -8.9, 0), V(0, 0, 1), 2),
    Part.Circle(V(-24, -8.9, 0), V(0, 0, 1), 2),
    Part.Circle(V(-24, -49.4, 0), V(0, 0, 1), 2),
], False)
sketch9.addConstraint([
    Sketcher.Constraint("Equal", 0, 1),
    Sketcher.Constraint("Equal", 1, 2),
    Sketcher.Constraint("Equal", 2, 3),
    Sketcher.Constraint("Horizontal", 1, 3, 2, 3),
    Sketcher.Constraint("Horizontal", 0, 3, 3, 3),
    Sketcher.Constraint("Vertical", 0, 3, 1, 3),
    Sketcher.Constraint("Vertical", 2, 3, 3, 3),
    Sketcher.Constraint("Diameter", 0, Q("4 mm")),
    Sketcher.Constraint("DistanceY", 0, 3, 1, 3, Q("40.5 mm")),
    Sketcher.Constraint("DistanceX", 1, 3, 2, 3, Q("62.25 mm")),
    Sketcher.Constraint("DistanceX", 0, 3, -1, 1, Q("86.214446 mm")),
    Sketcher.Constraint("DistanceY", 0, 3, -1, 1, Q("49.403874 mm")),
])
pad5 = body.newObject("PartDesign::Pad", "Pad004")
pad5.Profile = sketch9
pad5.Length = 10

sketch10 = body.newObject("Sketcher::SketchObject", "Sketch009")
sketch10.AttachmentSupport = (doc.getObject("XY_Plane"), [""])
sketch10.MapMode = "FlatFace"
sketch10.addGeometry([
    Part.Circle(V(-55.1, -47.7, 0), V(0, 0, 1), 1.2),
    Part.Circle(V(-55.1, -10.7, 0), V(0, 0, 1), 1.2),
], False)
sketch10.addConstraint([
    Sketcher.Constraint("Equal", 0, 1),
    Sketcher.Constraint("Vertical", 0, 3, 1, 3),
    Sketcher.Constraint("Diameter", 0, Q("2.5 mm")),
    Sketcher.Constraint("DistanceY", 0, 3, 1, 3, Q("37 mm")),
    Sketcher.Constraint("DistanceX", 0, 3, -1, 1, Q("55.089446 mm")),
    Sketcher.Constraint("DistanceY", 0, 3, -1, 1, Q("47.653874 mm")),
])
pad6 = body.newObject("PartDesign::Pad", "Pad005")
pad6.Profile = sketch10
pad6.Length = 5
doc.recompute()

fillet5 = body.newObject("PartDesign::Fillet", "Fillet004")
fillet5.Base = (pad6, edges_at(pad6, [
    (-81.214, -8.904, 25),
    (-86.214, -3.904, 25),
    (-88.214, -8.904, 25),
    (-91.214, -8.904, 25),
    (-86.214, -13.904, 25),
    (-81.214, -49.404, 25),
    (-86.214, -44.404, 25),
    (-88.214, -49.404, 25),
    (-91.214, -49.404, 25),
    (-86.214, -54.404, 25),
    (-18.964, -8.904, 25),
    (-23.964, -3.904, 25),
    (-25.964, -8.904, 25),
    (-28.964, -8.904, 25),
    (-23.964, -13.904, 25),
    (-18.964, -49.404, 25),
    (-23.964, -44.404, 25),
    (-25.964, -49.404, 25),
    (-28.964, -49.404, 25),
    (-23.964, -54.404, 25),
]))
fillet5.Radius = 1
doc.recompute()

fillet6 = body.newObject("PartDesign::Fillet", "Fillet005")
fillet6.Base = (fillet5, edges_at(fillet5, [
    (-55.089, -6.154, 10),
    (-62.089, -29.154, 10),
    (-55.089, -14.154, 10),
    (-56.339, -47.654, 10),
    (-56.339, -10.654, 10),
    (-67.089, -29.154, 10),
    (-48.089, -29.154, 10),
    (-55.089, -44.154, 10),
    (-55.089, -52.154, 10),
    (-43.089, -29.154, 10),
]))
fillet6.Radius = 1

doc.recompute()
